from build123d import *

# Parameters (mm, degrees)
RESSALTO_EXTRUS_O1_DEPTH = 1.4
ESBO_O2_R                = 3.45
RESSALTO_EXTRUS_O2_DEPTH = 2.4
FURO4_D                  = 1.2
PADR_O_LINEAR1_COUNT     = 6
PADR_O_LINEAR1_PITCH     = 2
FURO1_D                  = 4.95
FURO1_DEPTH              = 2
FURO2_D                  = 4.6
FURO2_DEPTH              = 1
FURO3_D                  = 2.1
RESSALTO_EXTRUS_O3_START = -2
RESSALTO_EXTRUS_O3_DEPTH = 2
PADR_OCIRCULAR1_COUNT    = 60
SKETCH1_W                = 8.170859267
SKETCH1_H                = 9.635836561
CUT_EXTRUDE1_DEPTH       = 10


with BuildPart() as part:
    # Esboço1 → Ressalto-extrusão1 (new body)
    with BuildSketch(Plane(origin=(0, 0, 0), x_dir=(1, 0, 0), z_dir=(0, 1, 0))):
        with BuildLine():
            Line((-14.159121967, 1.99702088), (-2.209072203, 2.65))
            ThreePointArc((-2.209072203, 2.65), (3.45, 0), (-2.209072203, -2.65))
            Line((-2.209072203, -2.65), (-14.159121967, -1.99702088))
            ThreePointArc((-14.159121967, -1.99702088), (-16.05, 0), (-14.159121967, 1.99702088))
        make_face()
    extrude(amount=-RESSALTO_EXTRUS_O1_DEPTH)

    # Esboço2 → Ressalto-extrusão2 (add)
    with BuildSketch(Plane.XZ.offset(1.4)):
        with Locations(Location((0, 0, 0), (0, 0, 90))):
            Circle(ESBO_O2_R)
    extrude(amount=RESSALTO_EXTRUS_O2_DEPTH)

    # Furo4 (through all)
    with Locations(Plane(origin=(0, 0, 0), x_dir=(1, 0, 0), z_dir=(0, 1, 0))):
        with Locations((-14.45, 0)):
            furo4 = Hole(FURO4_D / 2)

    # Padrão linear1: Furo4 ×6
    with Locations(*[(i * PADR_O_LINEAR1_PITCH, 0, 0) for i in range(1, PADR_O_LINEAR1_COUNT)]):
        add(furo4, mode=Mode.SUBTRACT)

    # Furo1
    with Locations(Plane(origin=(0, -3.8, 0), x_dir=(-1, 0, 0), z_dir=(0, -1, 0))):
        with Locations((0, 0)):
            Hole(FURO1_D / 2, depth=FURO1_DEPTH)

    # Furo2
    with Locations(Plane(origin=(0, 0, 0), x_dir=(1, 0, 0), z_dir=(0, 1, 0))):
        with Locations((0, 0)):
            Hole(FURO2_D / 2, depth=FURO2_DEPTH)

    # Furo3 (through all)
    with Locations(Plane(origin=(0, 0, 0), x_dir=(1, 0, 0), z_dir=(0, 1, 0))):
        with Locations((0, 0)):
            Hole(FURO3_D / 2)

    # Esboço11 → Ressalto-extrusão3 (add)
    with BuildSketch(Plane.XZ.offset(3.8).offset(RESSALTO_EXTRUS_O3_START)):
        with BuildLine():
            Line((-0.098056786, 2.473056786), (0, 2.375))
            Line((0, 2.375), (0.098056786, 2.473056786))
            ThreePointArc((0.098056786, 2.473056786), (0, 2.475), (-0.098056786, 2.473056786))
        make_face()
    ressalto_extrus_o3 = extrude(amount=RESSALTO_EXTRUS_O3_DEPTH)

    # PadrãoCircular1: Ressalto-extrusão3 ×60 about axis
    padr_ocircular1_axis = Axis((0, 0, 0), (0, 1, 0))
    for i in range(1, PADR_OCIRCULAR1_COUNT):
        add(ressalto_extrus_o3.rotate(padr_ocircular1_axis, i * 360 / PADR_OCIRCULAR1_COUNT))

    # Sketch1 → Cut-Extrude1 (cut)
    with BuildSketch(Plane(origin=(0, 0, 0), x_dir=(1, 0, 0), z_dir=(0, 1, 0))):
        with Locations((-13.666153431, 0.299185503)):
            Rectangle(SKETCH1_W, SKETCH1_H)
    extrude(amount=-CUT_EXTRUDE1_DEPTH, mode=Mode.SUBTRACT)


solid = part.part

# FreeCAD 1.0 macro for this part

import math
import FreeCAD as App
import Part
import Sketcher
Q = App.Units.Quantity

doc = App.newDocument("Part")
body = doc.addObject("PartDesign::Body", "Body")

sketch1 = body.newObject("Sketcher::SketchObject", "Sketch")
sketch1.AttachmentSupport = (doc.getObject("XZ_Plane"), [""])
sketch1.MapMode = "FlatFace"
sketch1.addGeometry([
    Part.LineSegment(App.Vector(-2.2, -2.6, 0), App.Vector(-14.2, -2, 0)),
    Part.ArcOfCircle(Part.Circle(App.Vector(-14.1, 0, 0), App.Vector(0, 0, 1), 2), math.radians(93), math.radians(267)),
    Part.LineSegment(App.Vector(-14.2, 2, 0), App.Vector(-2.2, 2.6, 0)),
    Part.ArcOfCircle(Part.Circle(App.Vector(0, 0, 0), App.Vector(0, 0, 1), 3.5), math.radians(-130), math.radians(130)),
], False)
sketch1.addConstraint([
    Sketcher.Constraint("Tangent", 0, 2, 1, 2),
    Sketcher.Constraint("Tangent", 1, 1, 2, 1),
    Sketcher.Constraint("Coincident", 2, 2, 3, 2),
    Sketcher.Constraint("Coincident", 3, 1, 0, 1),
    Sketcher.Constraint("Coincident", 3, 3, -1, 1),
    Sketcher.Constraint("Symmetric", 0, 2, 1, 1, -1),
    Sketcher.Constraint("Radius", 1, Q("2 mm")),
    Sketcher.Constraint("Radius", 3, Q("3.45 mm")),
    Sketcher.Constraint("DistanceY", 3, 1, 2, 2, Q("5.3 mm")),
    Sketcher.Constraint("DistanceX", 1, 3, -1, 1, Q("14.05 mm")),
])
pad1 = body.newObject("PartDesign::Pad", "Pad")
pad1.Profile = sketch1
pad1.Length = 1.4

sketch2 = body.newObject("Sketcher::SketchObject", "Sketch001")
sketch2.AttachmentSupport = (doc.getObject("XZ_Plane"), [""])
sketch2.MapMode = "FlatFace"
sketch2.AttachmentOffset = App.Placement(App.Vector(0, 0, 1.4), App.Rotation())
sketch2.addGeometry(Part.Circle(App.Vector(0, 0, 0), App.Vector(0, 0, 1), 3.5), False)
sketch2.addConstraint([
    Sketcher.Constraint("Coincident", 0, 3, -1, 1),
    Sketcher.Constraint("Diameter", 0, Q("6.9 mm")),
])
pad2 = body.newObject("PartDesign::Pad", "Pad001")
pad2.Profile = sketch2
pad2.Length = 2.4

sketch3 = body.newObject("Sketcher::SketchObject", "Sketch002")
sketch3.AttachmentSupport = (doc.getObject("XZ_Plane"), [""])
sketch3.MapMode = "FlatFace"
sketch3.addGeometry(Part.Circle(App.Vector(-14.4, 0, 0), App.Vector(0, 0, 1), 0.6), False)
sketch3.addConstraint([
    Sketcher.Constraint("PointOnObject", 0, 3, -1),
    Sketcher.Constraint("Diameter", 0, Q("1.2 mm")),
    Sketcher.Constraint("DistanceX", 0, 3, -1, 1, Q("14.45 mm")),
])
doc.recompute()
hole = body.newObject("PartDesign::Hole", "Hole")
hole.Profile = sketch3
hole.ThreadType = "None"
hole.Diameter = 1.2
hole.DepthType = "ThroughAll"
hole.Reversed = True
doc.recompute()

linearpattern = body.newObject("PartDesign::LinearPattern", "LinearPattern")
linearpattern.Originals = [hole]
linearpattern.Direction = (doc.getObject("X_Axis"), [""])
linearpattern.Mode = "offset"
linearpattern.Offset = 2
linearpattern.Occurrences = 6
body.Tip = linearpattern

sketch4 = body.newObject("Sketcher::SketchObject", "Sketch003")
sketch4.AttachmentSupport = (doc.getObject("XZ_Plane"), [""])
sketch4.MapMode = "FlatFace"
sketch4.AttachmentOffset = App.Placement(App.Vector(0, 0, 3.8), App.Rotation())
sketch4.addGeometry(Part.Circle(App.Vector(0, 0, 0), App.Vector(0, 0, 1), 2.5), False)
sketch4.addConstraint([
    Sketcher.Constraint("Coincident", 0, 3, -1, 1),
    Sketcher.Constraint("Diameter", 0, Q("4.95 mm")),
])
doc.recompute()
hole2 = body.newObject("PartDesign::Hole", "Hole001")
hole2.Profile = sketch4
hole2.ThreadType = "None"
hole2.Diameter = 4.95
hole2.DepthType = "Dimension"
hole2.Depth = 2
hole2.DrillPoint = "Flat"

sketch5 = body.newObject("Sketcher::SketchObject", "Sketch004")
sketch5.AttachmentSupport = (doc.getObject("XZ_Plane"), [""])
sketch5.MapMode = "FlatFace"
sketch5.addGeometry(Part.Circle(App.Vector(0, 0, 0), App.Vector(0, 0, 1), 2.3), False)
sketch5.addConstraint([
    Sketcher.Constraint("Coincident", 0, 3, -1, 1),
    Sketcher.Constraint("Diameter", 0, Q("4.6 mm")),
])
doc.recompute()
hole3 = body.newObject("PartDesign::Hole", "Hole002")
hole3.Profile = sketch5
hole3.ThreadType = "None"
hole3.Diameter = 4.6
hole3.DepthType = "Dimension"
hole3.Depth = 1
hole3.DrillPoint = "Flat"
hole3.Reversed = True

sketch6 = body.newObject("Sketcher::SketchObject", "Sketch005")
sketch6.AttachmentSupport = (doc.getObject("XZ_Plane"), [""])
sketch6.MapMode = "FlatFace"
sketch6.addGeometry(Part.Circle(App.Vector(0, 0, 0), App.Vector(0, 0, 1), 1.1), False)
sketch6.addConstraint([
    Sketcher.Constraint("Coincident", 0, 3, -1, 1),
    Sketcher.Constraint("Diameter", 0, Q("2.1 mm")),
])
doc.recompute()
hole4 = body.newObject("PartDesign::Hole", "Hole003")
hole4.Profile = sketch6
hole4.ThreadType = "None"
hole4.Diameter = 2.1
hole4.DepthType = "ThroughAll"
hole4.Reversed = True

sketch7 = body.newObject("Sketcher::SketchObject", "Sketch006")
sketch7.AttachmentSupport = (doc.getObject("XZ_Plane"), [""])
sketch7.MapMode = "FlatFace"
sketch7.AttachmentOffset = App.Placement(App.Vector(0, 0, 1.8), App.Rotation())
sketch7.addGeometry([
    Part.LineSegment(App.Vector(-0.1, 2.47, 0), App.Vector(0, 2.38, 0)),
    Part.LineSegment(App.Vector(0, 2.38, 0), App.Vector(0.1, 2.47, 0)),
    Part.ArcOfCircle(Part.Circle(App.Vector(0, 0, 0), App.Vector(0, 0, 1), 2.48), math.radians(87.73), math.radians(92.27)),
], False)
sketch7.addConstraint([
    Sketcher.Constraint("Coincident", 0, 2, 1, 1),
    Sketcher.Constraint("Coincident", 1, 2, 2, 1),
    Sketcher.Constraint("Coincident", 2, 2, 0, 1),
    Sketcher.Constraint("Coincident", 2, 3, -1, 1),
    Sketcher.Constraint("PointOnObject", 0, 2, -2),
    Sketcher.Constraint("Perpendicular", 0, 1),
    Sketcher.Constraint("Horizontal", 1, 2, 2, 2),
    Sketcher.Constraint("Radius", 2, Q("2.475 mm")),
    Sketcher.Constraint("DistanceY", -1, 1, 0, 2, Q("2.375 mm")),
])
pad3 = body.newObject("PartDesign::Pad", "Pad002")
pad3.Profile = sketch7
pad3.Length = 2
doc.recompute()

polarpattern = body.newObject("PartDesign::PolarPattern", "PolarPattern")
polarpattern.Originals = [pad3]
polarpattern.Axis = (doc.getObject("Y_Axis"), [""])
polarpattern.Angle = 360
polarpattern.Occurrences = 60
body.Tip = polarpattern

sketch8 = body.newObject("Sketcher::SketchObject", "Sketch007")
sketch8.AttachmentSupport = (doc.getObject("XZ_Plane"), [""])
sketch8.MapMode = "FlatFace"
sketch8.addGeometry([
    Part.LineSegment(App.Vector(-18, -5, 0), App.Vector(-18, 5, 0)),
    Part.LineSegment(App.Vector(-18, 5, 0), App.Vector(-10, 5, 0)),
    Part.LineSegment(App.Vector(-10, 5, 0), App.Vector(-10, -5, 0)),
    Part.LineSegment(App.Vector(-10, -5, 0), App.Vector(-18, -5, 0)),
], False)
sketch8.addConstraint([
    Sketcher.Constraint("Coincident", 0, 2, 1, 1),
    Sketcher.Constraint("Coincident", 1, 2, 2, 1),
    Sketcher.Constraint("Coincident", 2, 2, 3, 1),
    Sketcher.Constraint("Coincident", 3, 2, 0, 1),
    Sketcher.Constraint("Vertical", 0),
    Sketcher.Constraint("Horizontal", 1),
    Sketcher.Constraint("Vertical", 2),
    Sketcher.Constraint("Horizontal", 3),
    Sketcher.Constraint("DistanceX", 1, 1, 1, 2, Q("8.170859 mm")),
    Sketcher.Constraint("DistanceY", 0, 1, 0, 2, Q("9.635837 mm")),
    Sketcher.Constraint("DistanceX", 0, 2, -1, 1, Q("17.751583 mm")),
    Sketcher.Constraint("DistanceY", -1, 1, 0, 2, Q("4.518733 mm")),
])
pocket1 = body.newObject("PartDesign::Pocket", "Pocket")
pocket1.Profile = sketch8
pocket1.Length = 10
pocket1.Reversed = True

doc.recompute()
